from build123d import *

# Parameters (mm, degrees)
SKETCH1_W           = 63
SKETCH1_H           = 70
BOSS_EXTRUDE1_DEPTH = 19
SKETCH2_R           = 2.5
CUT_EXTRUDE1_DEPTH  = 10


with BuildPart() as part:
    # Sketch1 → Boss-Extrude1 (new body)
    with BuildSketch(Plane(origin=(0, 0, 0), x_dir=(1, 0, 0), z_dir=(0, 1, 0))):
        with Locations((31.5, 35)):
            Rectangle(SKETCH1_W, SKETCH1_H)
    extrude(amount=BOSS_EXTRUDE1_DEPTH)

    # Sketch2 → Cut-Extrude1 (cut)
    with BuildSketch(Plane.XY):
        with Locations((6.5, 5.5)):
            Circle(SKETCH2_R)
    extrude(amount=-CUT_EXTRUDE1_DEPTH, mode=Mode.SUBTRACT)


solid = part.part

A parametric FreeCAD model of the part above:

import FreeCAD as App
import Part
import Sketcher

doc = App.newDocument("Part")
params = doc.addObject("Spreadsheet::Sheet", "Params")
for row, (alias, value) in enumerate([
    ("sketch1_width", "63 mm"),
    ("sketch1_height", "70 mm"),
    ("pad1_length", "19 mm"),
    ("sketch2_diameter", "5 mm"),
    ("pocket1_length", "10 mm"),
], start=1):
    params.set(f"A{row}", alias)
    params.set(f"B{row}", "=" + value)
    params.setAlias(f"B{row}", alias)

body = doc.addObject("PartDesign::Body", "Body")

# Sketch on XZ plane
sketch1 = body.newObject("Sketcher::SketchObject", "Sketch")
sketch1.AttachmentSupport = (doc.getObject("XZ_Plane"), [""])
sketch1.MapMode = "FlatFace"
sketch1.addGeometry(Part.LineSegment(App.Vector(0, -70, 0), App.Vector(0, 0, 0)), False)
sketch1.addGeometry(Part.LineSegment(App.Vector(0, 0, 0), App.Vector(63, 0, 0)), False)
sketch1.addGeometry(Part.LineSegment(App.Vector(63, 0, 0), App.Vector(63, -70, 0)), False)
sketch1.addGeometry(Part.LineSegment(App.Vector(63, -70, 0), App.Vector(0, -70, 0)), False)
sketch1.addConstraint(Sketcher.Constraint("Coincident", 0, 2, 1, 1))
sketch1.addConstraint(Sketcher.Constraint("Coincident", 1, 2, 2, 1))
sketch1.addConstraint(Sketcher.Constraint("Coincident", 2, 2, 3, 1))
sketch1.addConstraint(Sketcher.Constraint("Coincident", 3, 2, 0, 1))
sketch1.addConstraint(Sketcher.Constraint("Vertical", 0))
sketch1.addConstraint(Sketcher.Constraint("Horizontal", 1))
sketch1.addConstraint(Sketcher.Constraint("Vertical", 2))
sketch1.addConstraint(Sketcher.Constraint("Horizontal", 3))
sketch1.addConstraint(Sketcher.Constraint("Coincident", 0, 2, -1, 1))
sketch1.addConstraint(Sketcher.Constraint("DistanceX", 1, 1, 1, 2, 63.0))
sketch1.addConstraint(Sketcher.Constraint("DistanceY", 0, 1, 0, 2, 70.0))
sketch1.setExpression("Constraints[9]", "Params.sketch1_width")
sketch1.setExpression("Constraints[10]", "Params.sketch1_height")
pad1 = body.newObject("PartDesign::Pad", "Pad")
pad1.Profile = sketch1
pad1.setExpression("Length", "Params.pad1_length")
pad1.Reversed = True

# Sketch on XY plane
sketch2 = body.newObject("Sketcher::SketchObject", "Sketch001")
sketch2.AttachmentSupport = (doc.getObject("XY_Plane"), [""])
sketch2.MapMode = "FlatFace"
sketch2.addGeometry(Part.Circle(App.Vector(6.5, 5.5, 0), App.Vector(0, 0, 1), 2.5), False)
sketch2.addConstraint(Sketcher.Constraint("Diameter", 0, 5.0))
sketch2.addConstraint(Sketcher.Constraint("DistanceX", -1, 1, 0, 3, 6.5))
sketch2.addConstraint(Sketcher.Constraint("DistanceY", -1, 1, 0, 3, 5.5))
sketch2.setExpression("Constraints[0]", "Params.sketch2_diameter")
pocket1 = body.newObject("PartDesign::Pocket", "Pocket")
pocket1.Profile = sketch2
pocket1.setExpression("Length", "Params.pocket1_length")

doc.recompute()
